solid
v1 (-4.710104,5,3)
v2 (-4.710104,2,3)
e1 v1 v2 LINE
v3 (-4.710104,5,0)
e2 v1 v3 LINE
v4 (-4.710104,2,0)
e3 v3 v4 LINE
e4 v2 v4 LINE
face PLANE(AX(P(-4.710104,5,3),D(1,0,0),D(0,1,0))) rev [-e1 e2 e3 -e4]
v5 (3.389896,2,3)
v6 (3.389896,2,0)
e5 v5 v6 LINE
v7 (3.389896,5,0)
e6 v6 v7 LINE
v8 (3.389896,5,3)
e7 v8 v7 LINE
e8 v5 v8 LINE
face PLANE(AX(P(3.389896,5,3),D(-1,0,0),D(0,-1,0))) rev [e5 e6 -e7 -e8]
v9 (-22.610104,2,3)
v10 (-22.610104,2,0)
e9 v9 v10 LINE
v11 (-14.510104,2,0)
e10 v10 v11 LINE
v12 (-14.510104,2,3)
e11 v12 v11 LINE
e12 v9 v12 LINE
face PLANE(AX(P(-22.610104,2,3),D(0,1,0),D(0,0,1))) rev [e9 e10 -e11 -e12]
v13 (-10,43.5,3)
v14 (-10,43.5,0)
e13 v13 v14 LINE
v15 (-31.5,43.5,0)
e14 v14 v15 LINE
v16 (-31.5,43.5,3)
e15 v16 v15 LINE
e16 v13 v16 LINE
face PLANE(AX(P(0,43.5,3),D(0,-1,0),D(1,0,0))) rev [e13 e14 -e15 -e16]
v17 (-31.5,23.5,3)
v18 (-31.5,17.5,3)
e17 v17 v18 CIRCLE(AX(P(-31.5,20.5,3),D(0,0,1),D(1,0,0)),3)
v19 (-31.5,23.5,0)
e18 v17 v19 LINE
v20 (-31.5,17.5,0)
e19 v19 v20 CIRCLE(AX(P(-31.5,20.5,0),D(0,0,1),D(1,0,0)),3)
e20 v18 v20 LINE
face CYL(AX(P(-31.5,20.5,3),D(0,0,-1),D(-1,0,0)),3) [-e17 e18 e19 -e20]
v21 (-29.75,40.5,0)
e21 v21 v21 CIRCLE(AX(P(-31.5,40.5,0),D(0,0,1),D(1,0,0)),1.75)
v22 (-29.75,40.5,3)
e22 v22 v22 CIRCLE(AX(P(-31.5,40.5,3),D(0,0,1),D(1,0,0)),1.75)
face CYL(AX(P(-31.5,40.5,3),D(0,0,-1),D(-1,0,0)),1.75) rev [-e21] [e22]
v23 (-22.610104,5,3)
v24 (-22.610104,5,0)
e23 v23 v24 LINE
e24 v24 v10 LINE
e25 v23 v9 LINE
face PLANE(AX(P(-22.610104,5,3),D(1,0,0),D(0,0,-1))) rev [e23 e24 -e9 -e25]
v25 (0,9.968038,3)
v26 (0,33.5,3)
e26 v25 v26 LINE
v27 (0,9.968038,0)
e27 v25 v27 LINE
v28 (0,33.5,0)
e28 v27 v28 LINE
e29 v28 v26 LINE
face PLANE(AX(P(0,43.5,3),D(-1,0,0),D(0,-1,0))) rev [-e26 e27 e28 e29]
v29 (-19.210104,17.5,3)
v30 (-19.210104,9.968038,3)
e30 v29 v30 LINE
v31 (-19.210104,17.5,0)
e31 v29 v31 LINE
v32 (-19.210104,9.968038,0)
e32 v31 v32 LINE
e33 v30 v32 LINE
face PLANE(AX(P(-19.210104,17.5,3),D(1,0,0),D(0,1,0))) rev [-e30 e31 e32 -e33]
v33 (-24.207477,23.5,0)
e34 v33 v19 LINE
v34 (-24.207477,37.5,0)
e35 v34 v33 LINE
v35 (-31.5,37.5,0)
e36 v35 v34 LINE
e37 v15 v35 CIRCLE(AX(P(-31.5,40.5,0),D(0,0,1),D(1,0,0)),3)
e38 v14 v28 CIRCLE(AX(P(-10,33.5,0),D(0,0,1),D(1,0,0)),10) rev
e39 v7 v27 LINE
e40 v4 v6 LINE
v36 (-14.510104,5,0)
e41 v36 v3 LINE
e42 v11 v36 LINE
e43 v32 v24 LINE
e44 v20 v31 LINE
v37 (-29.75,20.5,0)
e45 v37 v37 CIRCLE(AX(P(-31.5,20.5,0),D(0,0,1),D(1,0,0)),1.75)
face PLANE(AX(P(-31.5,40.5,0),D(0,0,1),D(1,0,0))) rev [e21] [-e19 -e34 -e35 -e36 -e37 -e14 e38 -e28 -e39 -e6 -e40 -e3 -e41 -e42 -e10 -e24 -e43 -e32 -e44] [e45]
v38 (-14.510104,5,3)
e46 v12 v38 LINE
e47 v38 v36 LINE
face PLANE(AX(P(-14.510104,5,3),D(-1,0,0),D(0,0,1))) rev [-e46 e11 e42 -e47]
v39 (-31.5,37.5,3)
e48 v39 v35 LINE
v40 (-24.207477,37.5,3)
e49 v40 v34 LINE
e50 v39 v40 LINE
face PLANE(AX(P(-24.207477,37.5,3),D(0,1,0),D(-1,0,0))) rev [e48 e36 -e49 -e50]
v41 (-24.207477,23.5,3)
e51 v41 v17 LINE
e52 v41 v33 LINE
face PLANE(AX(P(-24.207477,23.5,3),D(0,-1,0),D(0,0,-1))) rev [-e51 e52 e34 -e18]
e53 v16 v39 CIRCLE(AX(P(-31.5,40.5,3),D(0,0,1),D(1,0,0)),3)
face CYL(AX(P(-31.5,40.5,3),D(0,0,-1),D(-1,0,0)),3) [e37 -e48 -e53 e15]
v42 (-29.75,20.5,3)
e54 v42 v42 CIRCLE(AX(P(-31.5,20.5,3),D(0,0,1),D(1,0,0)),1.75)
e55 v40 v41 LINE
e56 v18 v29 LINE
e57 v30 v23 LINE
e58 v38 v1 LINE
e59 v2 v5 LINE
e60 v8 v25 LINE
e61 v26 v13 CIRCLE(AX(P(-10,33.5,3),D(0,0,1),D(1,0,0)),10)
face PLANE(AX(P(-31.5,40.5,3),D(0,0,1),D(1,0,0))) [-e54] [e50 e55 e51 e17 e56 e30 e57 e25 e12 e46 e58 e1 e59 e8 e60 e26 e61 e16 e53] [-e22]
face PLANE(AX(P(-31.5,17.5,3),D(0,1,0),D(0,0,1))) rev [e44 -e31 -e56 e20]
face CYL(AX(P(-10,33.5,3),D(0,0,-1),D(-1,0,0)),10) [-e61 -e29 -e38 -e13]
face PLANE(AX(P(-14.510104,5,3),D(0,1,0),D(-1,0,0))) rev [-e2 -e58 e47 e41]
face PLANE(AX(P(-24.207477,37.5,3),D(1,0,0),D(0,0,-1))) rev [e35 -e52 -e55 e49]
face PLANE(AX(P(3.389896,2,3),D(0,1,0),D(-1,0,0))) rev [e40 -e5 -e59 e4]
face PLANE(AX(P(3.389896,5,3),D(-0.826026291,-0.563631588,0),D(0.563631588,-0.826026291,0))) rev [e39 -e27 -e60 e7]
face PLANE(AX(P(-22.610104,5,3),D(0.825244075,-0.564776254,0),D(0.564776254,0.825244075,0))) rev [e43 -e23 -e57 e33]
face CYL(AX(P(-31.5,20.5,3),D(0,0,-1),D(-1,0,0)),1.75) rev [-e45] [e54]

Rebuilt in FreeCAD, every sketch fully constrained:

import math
import FreeCAD as App
import Part
import Sketcher
Q = App.Units.Quantity


def edges_at(feature, points):
    """Names of the edges that pass closest to the given points."""
    edges = feature.Shape.Edges
    near = lambda p: min(range(len(edges)), key=lambda i: edges[i].distToShape(Part.Vertex(*p))[0])
    return sorted({f"Edge{near(p) + 1}" for p in points})

doc = App.newDocument("Part")
body = doc.addObject("PartDesign::Body", "Body")

sketch1 = body.newObject("Sketcher::SketchObject", "Sketch")
sketch1.AttachmentSupport = (doc.getObject("XY_Plane"), [""])
sketch1.MapMode = "FlatFace"
sketch1.addGeometry([
    Part.LineSegment(App.Vector(0, 10, 0), App.Vector(0, 43.5, 0)),
    Part.LineSegment(App.Vector(0, 43.5, 0), App.Vector(-31.5, 43.5, 0)),
    Part.ArcOfCircle(Part.Circle(App.Vector(-31.5, 40.5, 0), App.Vector(0, 0, 1), 3), math.radians(90), math.radians(270)),
    Part.LineSegment(App.Vector(-31.5, 37.5, 0), App.Vector(-24.2, 37.5, 0)),
    Part.LineSegment(App.Vector(-24.2, 37.5, 0), App.Vector(-24.2, 23.5, 0)),
    Part.LineSegment(App.Vector(-24.2, 23.5, 0), App.Vector(-31.5, 23.5, 0)),
    Part.ArcOfCircle(Part.Circle(App.Vector(-31.5, 20.5, 0), App.Vector(0, 0, 1), 3), math.radians(90), math.radians(270)),
    Part.LineSegment(App.Vector(-31.5, 17.5, 0), App.Vector(-19.2, 17.5, 0)),
    Part.LineSegment(App.Vector(-19.2, 17.5, 0), App.Vector(-19.2, 10, 0)),
    Part.LineSegment(App.Vector(-19.2, 10, 0), App.Vector(-22.6, 5, 0)),
    Part.LineSegment(App.Vector(-22.6, 5, 0), App.Vector(-22.6, 2, 0)),
    Part.LineSegment(App.Vector(-22.6, 2, 0), App.Vector(-14.5, 2, 0)),
    Part.LineSegment(App.Vector(-14.5, 2, 0), App.Vector(-14.5, 5, 0)),
    Part.LineSegment(App.Vector(-14.5, 5, 0), App.Vector(-4.7, 5, 0)),
    Part.LineSegment(App.Vector(-4.7, 5, 0), App.Vector(-4.7, 2, 0)),
    Part.LineSegment(App.Vector(-4.7, 2, 0), App.Vector(3.4, 2, 0)),
    Part.LineSegment(App.Vector(3.4, 2, 0), App.Vector(3.4, 5, 0)),
    Part.LineSegment(App.Vector(3.4, 5, 0), App.Vector(0, 10, 0)),
    Part.Circle(App.Vector(-31.5, 20.5, 0), App.Vector(0, 0, 1), 1.8),
    Part.Circle(App.Vector(-31.5, 40.5, 0), App.Vector(0, 0, 1), 1.8),
], False)
sketch1.addConstraint([
    Sketcher.Constraint("Coincident", 0, 2, 1, 1),
    Sketcher.Constraint("Tangent", 1, 2, 2, 1),
    Sketcher.Constraint("Tangent", 2, 2, 3, 1),
    Sketcher.Constraint("Coincident", 3, 2, 4, 1),
    Sketcher.Constraint("Coincident", 4, 2, 5, 1),
    Sketcher.Constraint("Tangent", 5, 2, 6, 1),
    Sketcher.Constraint("Tangent", 6, 2, 7, 1),
    Sketcher.Constraint("Coincident", 7, 2, 8, 1),
    Sketcher.Constraint("Coincident", 8, 2, 9, 1),
    Sketcher.Constraint("Coincident", 9, 2, 10, 1),
    Sketcher.Constraint("Coincident", 10, 2, 11, 1),
    Sketcher.Constraint("Coincident", 11, 2, 12, 1),
    Sketcher.Constraint("Coincident", 12, 2, 13, 1),
    Sketcher.Constraint("Coincident", 13, 2, 14, 1),
    Sketcher.Constraint("Coincident", 14, 2, 15, 1),
    Sketcher.Constraint("Coincident", 15, 2, 16, 1),
    Sketcher.Constraint("Coincident", 16, 2, 17, 1),
    Sketcher.Constraint("Coincident", 17, 2, 0, 1),
    Sketcher.Constraint("Vertical", 0),
    Sketcher.Constraint("Horizontal", 1),
    Sketcher.Constraint("Horizontal", 3),
    Sketcher.Constraint("Vertical", 4),
    Sketcher.Constraint("Horizontal", 5),
    Sketcher.Constraint("Horizontal", 7),
    Sketcher.Constraint("Vertical", 8),
    Sketcher.Constraint("Vertical", 10),
    Sketcher.Constraint("Horizontal", 11),
    Sketcher.Constraint("Vertical", 12),
    Sketcher.Constraint("Horizontal", 13),
    Sketcher.Constraint("Vertical", 14),
    Sketcher.Constraint("Horizontal", 15),
    Sketcher.Constraint("Vertical", 16),
    Sketcher.Constraint("Coincident", 18, 3, 6, 3),
    Sketcher.Constraint("Coincident", 19, 3, 2, 3),
    Sketcher.Constraint("Equal", 2, 6),
    Sketcher.Constraint("Equal", 18, 19),
    Sketcher.Constraint("PointOnObject", 0, 2, -2),
    Sketcher.Constraint("Horizontal", 9, 2, 12, 2),
    Sketcher.Constraint("Horizontal", 11, 2, 14, 2),
    Sketcher.Constraint("Horizontal", 13, 2, 16, 2),
    Sketcher.Constraint("Horizontal", 8, 2, 17, 2),
    Sketcher.Constraint("Vertical", 2, 3, 6, 3),
    Sketcher.Constraint("Equal", 11, 15),
    Sketcher.Constraint("Radius", 2, Q("3 mm")),
    Sketcher.Constraint("Diameter", 18, Q("3.5 mm")),
    Sketcher.Constraint("DistanceY", 4, 2, 4, 1, Q("14 mm")),
    Sketcher.Constraint("DistanceY", 10, 2, 10, 1, Q("3 mm")),
    Sketcher.Constraint("DistanceX", 1, 2, 1, 1, Q("31.5 mm")),
    Sketcher.Constraint("DistanceX", 11, 1, 11, 2, Q("8.1 mm")),
    Sketcher.Constraint("DistanceX", 13, 1, 13, 2, Q("9.8 mm")),
    Sketcher.Constraint("DistanceY", -1, 1, 9, 2, Q("5 mm")),
    Sketcher.Constraint("DistanceY", -1, 1, 2, 3, Q("40.5 mm")),
    Sketcher.Constraint("DistanceX", 9, 2, 8, 2, Q("3.4 mm")),
    Sketcher.Constraint("DistanceX", 3, 1, 3, 2, Q("7.292523 mm")),
    Sketcher.Constraint("DistanceX", 7, 1, 7, 2, Q("12.289896 mm")),
    Sketcher.Constraint("DistanceY", 0, 1, 0, 2, Q("33.531962 mm")),
])
pad1 = body.newObject("PartDesign::Pad", "Pad")
pad1.Profile = sketch1
pad1.Length = 3
doc.recompute()

fillet = body.newObject("PartDesign::Fillet", "Fillet")
fillet.Base = (pad1, edges_at(pad1, [(0, 43.5, 1.5)]))
fillet.Radius = 10

doc.recompute()
